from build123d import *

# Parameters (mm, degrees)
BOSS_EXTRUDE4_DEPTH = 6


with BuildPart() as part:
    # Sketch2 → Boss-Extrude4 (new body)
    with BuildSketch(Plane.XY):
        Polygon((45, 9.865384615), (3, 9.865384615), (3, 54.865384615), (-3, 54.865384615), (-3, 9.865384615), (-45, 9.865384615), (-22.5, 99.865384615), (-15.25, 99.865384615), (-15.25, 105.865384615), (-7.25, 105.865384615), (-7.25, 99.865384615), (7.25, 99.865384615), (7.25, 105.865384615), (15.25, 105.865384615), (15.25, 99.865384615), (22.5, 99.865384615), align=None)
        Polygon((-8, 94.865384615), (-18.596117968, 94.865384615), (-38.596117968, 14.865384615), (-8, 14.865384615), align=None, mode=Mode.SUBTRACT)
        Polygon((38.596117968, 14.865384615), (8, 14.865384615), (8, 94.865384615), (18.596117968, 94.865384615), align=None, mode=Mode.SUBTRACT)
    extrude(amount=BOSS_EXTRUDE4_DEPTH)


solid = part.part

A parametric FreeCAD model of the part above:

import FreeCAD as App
import Part
import Sketcher

V = App.Vector

doc = App.newDocument("Part")
params = doc.addObject("Spreadsheet::Sheet", "Params")
for row, (alias, value) in enumerate([
    ("sketch1_width", "42 mm"),
    ("sketch1_width2", "8 mm"),
    ("sketch1_width3", "6 mm"),
    ("sketch1_height", "45 mm"),
    ("sketch1_height2", "80 mm"),
    ("pad1_length", "6 mm"),
], start=1):
    params.set(f"A{row}", alias)
    params.set(f"B{row}", "=" + value)
    params.setAlias(f"B{row}", alias)

body = doc.addObject("PartDesign::Body", "Body")

# Sketch on XY plane
sketch1 = body.newObject("Sketcher::SketchObject", "Sketch")
sketch1.AttachmentSupport = (doc.getObject("XY_Plane"), [""])
sketch1.MapMode = "FlatFace"
sketch1.addGeometry([
    Part.LineSegment(V(3, 10, 0), V(45, 10, 0)),  # 0
    Part.LineSegment(V(45, 10, 0), V(22, 100, 0)),  # 1
    Part.LineSegment(V(22, 100, 0), V(15, 100, 0)),  # 2
    Part.LineSegment(V(15, 100, 0), V(15, 106, 0)),  # 3
    Part.LineSegment(V(15, 106, 0), V(7, 106, 0)),  # 4
    Part.LineSegment(V(7, 106, 0), V(7, 100, 0)),  # 5
    Part.LineSegment(V(7, 100, 0), V(-7, 100, 0)),  # 6
    Part.LineSegment(V(-7, 100, 0), V(-7, 106, 0)),  # 7
    Part.LineSegment(V(-7, 106, 0), V(-15, 106, 0)),  # 8
    Part.LineSegment(V(-15, 106, 0), V(-15, 100, 0)),  # 9
    Part.LineSegment(V(-15, 100, 0), V(-22, 100, 0)),  # 10
    Part.LineSegment(V(-22, 100, 0), V(-45, 10, 0)),  # 11
    Part.LineSegment(V(-45, 10, 0), V(-3, 10, 0)),  # 12
    Part.LineSegment(V(-3, 10, 0), V(-3, 55, 0)),  # 13
    Part.LineSegment(V(-3, 55, 0), V(3, 55, 0)),  # 14
    Part.LineSegment(V(3, 55, 0), V(3, 10, 0)),  # 15
    Part.LineSegment(V(39, 15, 0), V(8, 15, 0)),  # 16
    Part.LineSegment(V(8, 15, 0), V(8, 95, 0)),  # 17
    Part.LineSegment(V(8, 95, 0), V(19, 95, 0)),  # 18
    Part.LineSegment(V(19, 95, 0), V(39, 15, 0)),  # 19
    Part.LineSegment(V(-8, 95, 0), V(-8, 15, 0)),  # 20
    Part.LineSegment(V(-8, 15, 0), V(-39, 15, 0)),  # 21
    Part.LineSegment(V(-39, 15, 0), V(-19, 95, 0)),  # 22
    Part.LineSegment(V(-19, 95, 0), V(-8, 95, 0)),  # 23
], False)
sketch1.addConstraint([
    Sketcher.Constraint("Coincident", 0, 2, 1, 1),
    Sketcher.Constraint("Coincident", 1, 2, 2, 1),
    Sketcher.Constraint("Coincident", 2, 2, 3, 1),
    Sketcher.Constraint("Coincident", 3, 2, 4, 1),
    Sketcher.Constraint("Coincident", 4, 2, 5, 1),
    Sketcher.Constraint("Coincident", 5, 2, 6, 1),
    Sketcher.Constraint("Coincident", 6, 2, 7, 1),
    Sketcher.Constraint("Coincident", 7, 2, 8, 1),
    Sketcher.Constraint("Coincident", 8, 2, 9, 1),
    Sketcher.Constraint("Coincident", 9, 2, 10, 1),
    Sketcher.Constraint("Coincident", 10, 2, 11, 1),
    Sketcher.Constraint("Coincident", 11, 2, 12, 1),
    Sketcher.Constraint("Coincident", 12, 2, 13, 1),
    Sketcher.Constraint("Coincident", 13, 2, 14, 1),
    Sketcher.Constraint("Coincident", 14, 2, 15, 1),
    Sketcher.Constraint("Coincident", 15, 2, 0, 1),
    Sketcher.Constraint("Coincident", 16, 2, 17, 1),
    Sketcher.Constraint("Coincident", 17, 2, 18, 1),
    Sketcher.Constraint("Coincident", 18, 2, 19, 1),
    Sketcher.Constraint("Coincident", 19, 2, 16, 1),
    Sketcher.Constraint("Coincident", 20, 2, 21, 1),
    Sketcher.Constraint("Coincident", 21, 2, 22, 1),
    Sketcher.Constraint("Coincident", 22, 2, 23, 1),
    Sketcher.Constraint("Coincident", 23, 2, 20, 1),
    Sketcher.Constraint("Horizontal", 0),
    Sketcher.Constraint("Horizontal", 2),
    Sketcher.Constraint("Vertical", 3),
    Sketcher.Constraint("Horizontal", 4),
    Sketcher.Constraint("Vertical", 5),
    Sketcher.Constraint("Horizontal", 6),
    Sketcher.Constraint("Vertical", 7),
    Sketcher.Constraint("Horizontal", 8),
    Sketcher.Constraint("Vertical", 9),
    Sketcher.Constraint("Horizontal", 10),
    Sketcher.Constraint("Horizontal", 12),
    Sketcher.Constraint("Vertical", 13),
    Sketcher.Constraint("Horizontal", 14),
    Sketcher.Constraint("Vertical", 15),
    Sketcher.Constraint("Horizontal", 16),
    Sketcher.Constraint("Vertical", 17),
    Sketcher.Constraint("Horizontal", 18),
    Sketcher.Constraint("Vertical", 20),
    Sketcher.Constraint("Horizontal", 21),
    Sketcher.Constraint("Horizontal", 23),
    Sketcher.Constraint("Symmetric", 4, 2, 7, 2, -2),
    Sketcher.Constraint("Symmetric", 2, 2, 9, 2, -2),
    Sketcher.Constraint("Symmetric", 0, 2, 11, 2, -2),
    Sketcher.Constraint("Symmetric", 16, 2, 20, 2, -2),
    Sketcher.Constraint("Symmetric", 18, 2, 22, 2, -2),
    Sketcher.Constraint("Parallel", 1, 19),
    Sketcher.Constraint("Parallel", 11, 22),
    Sketcher.Constraint("Horizontal", 2, 2, 5, 2),
    Sketcher.Constraint("Equal", 2, 10),
    Sketcher.Constraint("Equal", 0, 12),
    Sketcher.Constraint("Equal", 14, 3),
    Sketcher.Constraint("DistanceX", 0, 1, 0, 2, 42.0),
    Sketcher.Constraint("DistanceX", 4, 2, 4, 1, 8.0),
    Sketcher.Constraint("DistanceX", 14, 1, 14, 2, 6.0),
    Sketcher.Constraint("DistanceY", 13, 1, 13, 2, 45.0),
    Sketcher.Constraint("DistanceY", 17, 1, 17, 2, 80.0),
    Sketcher.Constraint("DistanceX", 6, 2, 6, 1, 14.5),
    Sketcher.Constraint("DistanceX", -1, 1, 16, 2, 8.0),
    Sketcher.Constraint("DistanceY", 0, 2, 1, 2, 90.0),
    Sketcher.Constraint("DistanceY", 15, 2, 16, 2, 5.0),
    Sketcher.Constraint("DistanceX", 2, 2, 2, 1, 7.25),
    Sketcher.Constraint("DistanceX", 16, 2, 16, 1, 30.596118),
    Sketcher.Constraint("DistanceY", -1, 1, 0, 2, 9.865385),
])
sketch1.setExpression("Constraints[55]", "Params.sketch1_width")
sketch1.setExpression("Constraints[56]", "Params.sketch1_width2")
sketch1.setExpression("Constraints[57]", "Params.sketch1_width3")
sketch1.setExpression("Constraints[58]", "Params.sketch1_height")
sketch1.setExpression("Constraints[59]", "Params.sketch1_height2")
pad1 = body.newObject("PartDesign::Pad", "Pad")
pad1.Profile = sketch1
pad1.setExpression("Length", "Params.pad1_length")

doc.recompute()
